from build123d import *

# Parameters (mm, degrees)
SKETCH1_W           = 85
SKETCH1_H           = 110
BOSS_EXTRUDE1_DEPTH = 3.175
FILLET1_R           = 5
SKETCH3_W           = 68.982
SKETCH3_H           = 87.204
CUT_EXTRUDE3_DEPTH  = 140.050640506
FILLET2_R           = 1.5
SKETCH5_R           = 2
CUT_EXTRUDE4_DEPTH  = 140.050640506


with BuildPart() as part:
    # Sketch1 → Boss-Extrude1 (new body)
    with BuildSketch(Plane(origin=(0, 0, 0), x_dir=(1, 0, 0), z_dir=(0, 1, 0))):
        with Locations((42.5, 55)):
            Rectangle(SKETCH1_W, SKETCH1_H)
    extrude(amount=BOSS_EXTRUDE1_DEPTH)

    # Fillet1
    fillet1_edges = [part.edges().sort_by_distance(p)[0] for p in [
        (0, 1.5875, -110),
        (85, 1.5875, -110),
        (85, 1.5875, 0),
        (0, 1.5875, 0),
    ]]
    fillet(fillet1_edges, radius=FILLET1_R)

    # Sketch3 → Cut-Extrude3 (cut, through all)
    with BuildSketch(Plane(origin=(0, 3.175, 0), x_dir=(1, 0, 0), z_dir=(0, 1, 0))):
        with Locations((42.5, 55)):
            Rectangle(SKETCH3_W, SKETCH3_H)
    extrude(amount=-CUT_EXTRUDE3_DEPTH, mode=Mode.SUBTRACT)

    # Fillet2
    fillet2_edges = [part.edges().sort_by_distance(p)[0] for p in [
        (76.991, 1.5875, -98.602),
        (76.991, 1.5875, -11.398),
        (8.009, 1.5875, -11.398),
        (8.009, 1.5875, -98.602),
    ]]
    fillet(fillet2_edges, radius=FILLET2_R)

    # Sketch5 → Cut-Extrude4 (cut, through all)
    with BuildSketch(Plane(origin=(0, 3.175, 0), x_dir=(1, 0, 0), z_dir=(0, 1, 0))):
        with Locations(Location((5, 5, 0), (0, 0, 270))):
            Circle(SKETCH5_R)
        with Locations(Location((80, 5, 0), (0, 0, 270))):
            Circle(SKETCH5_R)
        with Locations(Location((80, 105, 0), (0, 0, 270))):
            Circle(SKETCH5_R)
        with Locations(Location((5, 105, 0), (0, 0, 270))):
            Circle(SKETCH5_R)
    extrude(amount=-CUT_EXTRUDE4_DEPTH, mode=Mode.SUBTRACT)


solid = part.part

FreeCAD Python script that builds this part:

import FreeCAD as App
import Part
import Sketcher
Q = App.Units.Quantity


def edges_at(feature, points):
    """Names of the edges that pass closest to the given points."""
    edges = feature.Shape.Edges
    near = lambda p: min(range(len(edges)), key=lambda i: edges[i].distToShape(Part.Vertex(*p))[0])
    return sorted({f"Edge{near(p) + 1}" for p in points})

doc = App.newDocument("Part")
params = doc.addObject("Spreadsheet::Sheet", "Params")
for row, (alias, value) in enumerate([
    ("sketch1_width", "85 mm"),
    ("sketch1_height", "110 mm"),
    ("pad1_length", "3.175 mm"),
    ("fillet_radius", "5 mm"),
    ("fillet2_radius", "1.5 mm"),
    ("sketch3_diameter", "4 mm"),
], start=1):
    params.set(f"A{row}", alias)
    params.set(f"B{row}", "=" + value)
    params.setAlias(f"B{row}", alias)

body = doc.addObject("PartDesign::Body", "Body")

sketch1 = body.newObject("Sketcher::SketchObject", "Sketch")
sketch1.AttachmentSupport = (doc.getObject("XZ_Plane"), [""])
sketch1.MapMode = "FlatFace"
sketch1.addGeometry(Part.LineSegment(App.Vector(0, -110, 0), App.Vector(0, 0, 0)), False)
sketch1.addGeometry(Part.LineSegment(App.Vector(0, 0, 0), App.Vector(85, 0, 0)), False)
sketch1.addGeometry(Part.LineSegment(App.Vector(85, 0, 0), App.Vector(85, -110, 0)), False)
sketch1.addGeometry(Part.LineSegment(App.Vector(85, -110, 0), App.Vector(0, -110, 0)), False)
sketch1.addConstraint(Sketcher.Constraint("Coincident", 0, 2, 1, 1))
sketch1.addConstraint(Sketcher.Constraint("Coincident", 1, 2, 2, 1))
sketch1.addConstraint(Sketcher.Constraint("Coincident", 2, 2, 3, 1))
sketch1.addConstraint(Sketcher.Constraint("Coincident", 3, 2, 0, 1))
sketch1.addConstraint(Sketcher.Constraint("Vertical", 0))
sketch1.addConstraint(Sketcher.Constraint("Horizontal", 1))
sketch1.addConstraint(Sketcher.Constraint("Vertical", 2))
sketch1.addConstraint(Sketcher.Constraint("Horizontal", 3))
sketch1.addConstraint(Sketcher.Constraint("Coincident", 0, 2, -1, 1))
sketch1.addConstraint(Sketcher.Constraint("DistanceX", 1, 1, 1, 2, Q("85 mm")))
sketch1.addConstraint(Sketcher.Constraint("DistanceY", 0, 1, 0, 2, Q("110 mm")))
sketch1.setExpression("Constraints[9]", "Params.sketch1_width")
sketch1.setExpression("Constraints[10]", "Params.sketch1_height")
pad1 = body.newObject("PartDesign::Pad", "Pad")
pad1.Profile = sketch1
pad1.setExpression("Length", "Params.pad1_length")
pad1.Reversed = True
doc.recompute()

fillet = body.newObject("PartDesign::Fillet", "Fillet")
fillet.Base = (pad1, edges_at(pad1, [
    (0, 1.587, -110),
    (85, 1.587, -110),
    (85, 1.587, 0),
    (0, 1.587, 0),
]))
fillet.setExpression("Radius", "Params.fillet_radius")

sketch2 = body.newObject("Sketcher::SketchObject", "Sketch001")
sketch2.AttachmentSupport = (doc.getObject("XZ_Plane"), [""])
sketch2.MapMode = "FlatFace"
sketch2.AttachmentOffset = App.Placement(App.Vector(0, 0, -3.175), App.Rotation())
sketch2.addGeometry(Part.LineSegment(App.Vector(8, -99, 0), App.Vector(8, -11, 0)), False)
sketch2.addGeometry(Part.LineSegment(App.Vector(8, -11, 0), App.Vector(77, -11, 0)), False)
sketch2.addGeometry(Part.LineSegment(App.Vector(77, -11, 0), App.Vector(77, -99, 0)), False)
sketch2.addGeometry(Part.LineSegment(App.Vector(77, -99, 0), App.Vector(8, -99, 0)), False)
sketch2.addConstraint(Sketcher.Constraint("Coincident", 0, 2, 1, 1))
sketch2.addConstraint(Sketcher.Constraint("Coincident", 1, 2, 2, 1))
sketch2.addConstraint(Sketcher.Constraint("Coincident", 2, 2, 3, 1))
sketch2.addConstraint(Sketcher.Constraint("Coincident", 3, 2, 0, 1))
sketch2.addConstraint(Sketcher.Constraint("Vertical", 0))
sketch2.addConstraint(Sketcher.Constraint("Horizontal", 1))
sketch2.addConstraint(Sketcher.Constraint("Vertical", 2))
sketch2.addConstraint(Sketcher.Constraint("Horizontal", 3))
sketch2.addConstraint(Sketcher.Constraint("DistanceX", 1, 1, 1, 2, Q("68.982 mm")))
sketch2.addConstraint(Sketcher.Constraint("DistanceY", 0, 1, 0, 2, Q("87.204 mm")))
sketch2.addConstraint(Sketcher.Constraint("DistanceX", -1, 1, 0, 2, Q("8.009 mm")))
sketch2.addConstraint(Sketcher.Constraint("DistanceY", 0, 2, -1, 1, Q("11.398 mm")))
pocket1 = body.newObject("PartDesign::Pocket", "Pocket")
pocket1.Profile = sketch2
pocket1.Type = "ThroughAll"
pocket1.Reversed = True
doc.recompute()

fillet2 = body.newObject("PartDesign::Fillet", "Fillet001")
fillet2.Base = (pocket1, edges_at(pocket1, [
    (76.991, 1.587, -98.602),
    (76.991, 1.587, -11.398),
    (8.009, 1.587, -11.398),
    (8.009, 1.587, -98.602),
]))
fillet2.setExpression("Radius", "Params.fillet2_radius")

sketch3 = body.newObject("Sketcher::SketchObject", "Sketch002")
sketch3.AttachmentSupport = (doc.getObject("XZ_Plane"), [""])
sketch3.MapMode = "FlatFace"
sketch3.AttachmentOffset = App.Placement(App.Vector(0, 0, -3.175), App.Rotation())
sketch3.addGeometry(Part.Circle(App.Vector(5, -5, 0), App.Vector(0, 0, 1), 2), False)
sketch3.addGeometry(Part.Circle(App.Vector(80, -5, 0), App.Vector(0, 0, 1), 2), False)
sketch3.addGeometry(Part.Circle(App.Vector(80, -105, 0), App.Vector(0, 0, 1), 2), False)
sketch3.addGeometry(Part.Circle(App.Vector(5, -105, 0), App.Vector(0, 0, 1), 2), False)
sketch3.addConstraint(Sketcher.Constraint("Equal", 0, 1))
sketch3.addConstraint(Sketcher.Constraint("Equal", 1, 2))
sketch3.addConstraint(Sketcher.Constraint("Equal", 2, 3))
sketch3.addConstraint(Sketcher.Constraint("Horizontal", 0, 3, 1, 3))
sketch3.addConstraint(Sketcher.Constraint("Horizontal", 2, 3, 3, 3))
sketch3.addConstraint(Sketcher.Constraint("Vertical", 1, 3, 2, 3))
sketch3.addConstraint(Sketcher.Constraint("Vertical", 0, 3, 3, 3))
sketch3.addConstraint(Sketcher.Constraint("Diameter", 0, Q("4 mm")))
sketch3.addConstraint(Sketcher.Constraint("DistanceX", -1, 1, 0, 3, Q("5 mm")))
sketch3.addConstraint(Sketcher.Constraint("DistanceY", 0, 3, -1, 1, Q("5 mm")))
sketch3.addConstraint(Sketcher.Constraint("DistanceX", -1, 1, 1, 3, Q("80 mm")))
sketch3.addConstraint(Sketcher.Constraint("DistanceY", 2, 3, -1, 1, Q("105 mm")))
sketch3.setExpression("Constraints[7]", "Params.sketch3_diameter")
pocket2 = body.newObject("PartDesign::Pocket", "Pocket001")
pocket2.Profile = sketch3
pocket2.Type = "ThroughAll"
pocket2.Reversed = True

doc.recompute()
